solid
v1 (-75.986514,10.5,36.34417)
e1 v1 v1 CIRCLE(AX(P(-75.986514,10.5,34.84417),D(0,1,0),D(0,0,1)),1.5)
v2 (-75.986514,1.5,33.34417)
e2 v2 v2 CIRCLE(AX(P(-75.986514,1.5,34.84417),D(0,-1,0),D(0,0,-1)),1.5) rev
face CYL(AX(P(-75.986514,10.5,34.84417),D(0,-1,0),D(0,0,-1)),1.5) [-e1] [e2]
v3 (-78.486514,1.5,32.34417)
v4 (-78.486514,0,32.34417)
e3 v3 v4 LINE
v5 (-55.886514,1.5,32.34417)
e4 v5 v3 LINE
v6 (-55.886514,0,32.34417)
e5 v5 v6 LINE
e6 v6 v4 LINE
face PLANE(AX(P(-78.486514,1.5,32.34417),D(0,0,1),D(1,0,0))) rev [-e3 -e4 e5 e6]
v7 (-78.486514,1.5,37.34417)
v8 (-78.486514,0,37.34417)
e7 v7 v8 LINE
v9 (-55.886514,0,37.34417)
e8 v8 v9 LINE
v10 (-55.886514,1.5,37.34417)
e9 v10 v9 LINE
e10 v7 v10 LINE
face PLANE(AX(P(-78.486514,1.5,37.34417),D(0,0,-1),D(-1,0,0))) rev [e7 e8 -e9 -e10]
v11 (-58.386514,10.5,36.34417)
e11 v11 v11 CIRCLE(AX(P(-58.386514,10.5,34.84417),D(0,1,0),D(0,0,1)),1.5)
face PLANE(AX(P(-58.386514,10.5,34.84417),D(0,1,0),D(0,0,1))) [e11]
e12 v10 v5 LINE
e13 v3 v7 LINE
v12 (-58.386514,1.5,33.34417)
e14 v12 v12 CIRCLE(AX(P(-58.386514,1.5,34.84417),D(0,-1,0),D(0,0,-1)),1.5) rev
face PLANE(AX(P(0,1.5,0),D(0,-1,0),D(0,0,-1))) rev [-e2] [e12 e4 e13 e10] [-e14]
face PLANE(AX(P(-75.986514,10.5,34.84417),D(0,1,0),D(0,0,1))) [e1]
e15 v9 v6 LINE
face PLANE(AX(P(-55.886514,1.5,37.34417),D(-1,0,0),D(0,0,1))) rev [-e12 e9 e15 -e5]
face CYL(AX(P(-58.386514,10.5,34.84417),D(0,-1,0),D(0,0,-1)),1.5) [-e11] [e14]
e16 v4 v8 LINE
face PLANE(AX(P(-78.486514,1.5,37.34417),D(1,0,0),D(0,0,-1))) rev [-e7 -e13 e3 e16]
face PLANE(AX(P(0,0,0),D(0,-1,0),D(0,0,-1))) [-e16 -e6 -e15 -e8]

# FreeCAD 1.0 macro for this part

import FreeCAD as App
import Part
import Sketcher
from FreeCAD import Vector
Q = App.Units.Quantity

doc = App.newDocument("Part")
params = doc.addObject("Spreadsheet::Sheet", "Params")
for row, (alias, value) in enumerate([
    ("sketch1_height", "5 mm"),
    ("sketch1_width", "22.6 mm"),
    ("pad1_length", "1.5 mm"),
    ("sketch2_diameter", "3 mm"),
    ("pad2_length", "9 mm"),
], start=1):
    params.set(f"A{row}", alias)
    params.set(f"B{row}", "=" + value)
    params.setAlias(f"B{row}", alias)

body = doc.addObject("PartDesign::Body", "Body")

# Sketch on XZ plane
sketch1 = body.newObject("Sketcher::SketchObject", "Sketch")
sketch1.AttachmentSupport = (doc.getObject("XZ_Plane"), [""])
sketch1.MapMode = "FlatFace"
sketch1.addGeometry([
    Part.LineSegment(Vector(-78.486514, 32.34417, 0), Vector(-78.486514, 37.34417, 0)),
    Part.LineSegment(Vector(-78.486514, 37.34417, 0), Vector(-55.886514, 37.34417, 0)),
    Part.LineSegment(Vector(-55.886514, 37.34417, 0), Vector(-55.886514, 32.34417, 0)),
    Part.LineSegment(Vector(-55.886514, 32.34417, 0), Vector(-78.486514, 32.34417, 0)),
], False)
sketch1.addConstraint([
    Sketcher.Constraint("Coincident", 0, 2, 1, 1),
    Sketcher.Constraint("Coincident", 1, 2, 2, 1),
    Sketcher.Constraint("Coincident", 2, 2, 3, 1),
    Sketcher.Constraint("Coincident", 3, 2, 0, 1),
    Sketcher.Constraint("Vertical", 0),
    Sketcher.Constraint("Horizontal", 1),
    Sketcher.Constraint("Vertical", 2),
    Sketcher.Constraint("Horizontal", 3),
    Sketcher.Constraint("DistanceY", 0, 1, 0, 2, Q("5 mm")),
    Sketcher.Constraint("DistanceX", 1, 1, 1, 2, Q("22.6 mm")),
    Sketcher.Constraint("DistanceY", -1, 1, 0, 2, Q("37.34417 mm")),
    Sketcher.Constraint("DistanceX", 0, 2, -1, 1, Q("78.486514 mm")),
])
sketch1.setExpression("Constraints[8]", "Params.sketch1_height")
sketch1.setExpression("Constraints[9]", "Params.sketch1_width")
pad1 = body.newObject("PartDesign::Pad", "Pad")
pad1.Profile = sketch1
pad1.setExpression("Length", "Params.pad1_length")
pad1.Reversed = True

# Sketch on XZ plane
sketch2 = body.newObject("Sketcher::SketchObject", "Sketch001")
sketch2.AttachmentSupport = (doc.getObject("XZ_Plane"), [""])
sketch2.MapMode = "FlatFace"
sketch2.AttachmentOffset = App.Placement(Vector(0, 0, -1.5), App.Rotation())
sketch2.addGeometry([
    Part.Circle(Vector(-75.986514, 34.84417, 0), Vector(0, 0, 1), 1.5),
    Part.Circle(Vector(-58.386514, 34.84417, 0), Vector(0, 0, 1), 1.5),
], False)
sketch2.addConstraint([
    Sketcher.Constraint("Equal", 0, 1),
    Sketcher.Constraint("Horizontal", 0, 3, 1, 3),
    Sketcher.Constraint("Diameter", 0, Q("3 mm")),
    Sketcher.Constraint("DistanceX", 0, 3, 1, 3, Q("17.6 mm")),
    Sketcher.Constraint("DistanceY", -1, 1, 0, 3, Q("34.84417 mm")),
    Sketcher.Constraint("DistanceX", 0, 3, -1, 1, Q("75.986514 mm")),
])
sketch2.setExpression("Constraints[2]", "Params.sketch2_diameter")
pad2 = body.newObject("PartDesign::Pad", "Pad001")
pad2.Profile = sketch2
pad2.setExpression("Length", "Params.pad2_length")
pad2.Reversed = True

doc.recompute()
